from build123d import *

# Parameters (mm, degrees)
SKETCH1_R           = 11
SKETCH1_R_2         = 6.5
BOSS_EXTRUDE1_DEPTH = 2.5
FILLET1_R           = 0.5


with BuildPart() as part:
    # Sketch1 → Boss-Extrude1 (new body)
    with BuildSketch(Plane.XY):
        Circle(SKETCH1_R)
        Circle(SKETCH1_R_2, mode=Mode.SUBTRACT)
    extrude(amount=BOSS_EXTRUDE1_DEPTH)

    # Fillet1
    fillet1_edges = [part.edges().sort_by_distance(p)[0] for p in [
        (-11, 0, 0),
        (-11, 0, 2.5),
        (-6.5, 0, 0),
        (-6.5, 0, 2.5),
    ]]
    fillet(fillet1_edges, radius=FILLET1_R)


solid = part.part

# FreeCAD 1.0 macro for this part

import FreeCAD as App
import Part
import Sketcher


def edges_at(feature, points):
    """Names of the edges that pass closest to the given points."""
    edges = feature.Shape.Edges
    near = lambda p: min(range(len(edges)), key=lambda i: edges[i].distToShape(Part.Vertex(*p))[0])
    return sorted({f"Edge{near(p) + 1}" for p in points})

doc = App.newDocument("Part")
body = doc.addObject("PartDesign::Body", "Body")

# Sketch on XY plane
sketch1 = body.newObject("Sketcher::SketchObject", "Sketch")
sketch1.AttachmentSupport = (doc.getObject("XY_Plane"), [""])
sketch1.MapMode = "FlatFace"
sketch1.addGeometry([
    Part.Circle(App.Vector(0, 0, 0), App.Vector(0, 0, 1), 11),
    Part.Circle(App.Vector(0, 0, 0), App.Vector(0, 0, 1), 6),
], False)
sketch1.addConstraint([
    Sketcher.Constraint("Coincident", 0, 3, -1, 1),
    Sketcher.Constraint("Coincident", 1, 3, -1, 1),
    Sketcher.Constraint("Diameter", 0, 22.0),
    Sketcher.Constraint("Diameter", 1, 13.0),
])
pad1 = body.newObject("PartDesign::Pad", "Pad")
pad1.Profile = sketch1
pad1.Length = 2.5
doc.recompute()

fillet = body.newObject("PartDesign::Fillet", "Fillet")
fillet.Base = (pad1, edges_at(pad1, [
    (-11, 0, 0),
    (-11, 0, 2.5),
    (-6.5, 0, 0),
    (-6.5, 0, 2.5),
]))
fillet.Radius = 0.5

doc.recompute()
